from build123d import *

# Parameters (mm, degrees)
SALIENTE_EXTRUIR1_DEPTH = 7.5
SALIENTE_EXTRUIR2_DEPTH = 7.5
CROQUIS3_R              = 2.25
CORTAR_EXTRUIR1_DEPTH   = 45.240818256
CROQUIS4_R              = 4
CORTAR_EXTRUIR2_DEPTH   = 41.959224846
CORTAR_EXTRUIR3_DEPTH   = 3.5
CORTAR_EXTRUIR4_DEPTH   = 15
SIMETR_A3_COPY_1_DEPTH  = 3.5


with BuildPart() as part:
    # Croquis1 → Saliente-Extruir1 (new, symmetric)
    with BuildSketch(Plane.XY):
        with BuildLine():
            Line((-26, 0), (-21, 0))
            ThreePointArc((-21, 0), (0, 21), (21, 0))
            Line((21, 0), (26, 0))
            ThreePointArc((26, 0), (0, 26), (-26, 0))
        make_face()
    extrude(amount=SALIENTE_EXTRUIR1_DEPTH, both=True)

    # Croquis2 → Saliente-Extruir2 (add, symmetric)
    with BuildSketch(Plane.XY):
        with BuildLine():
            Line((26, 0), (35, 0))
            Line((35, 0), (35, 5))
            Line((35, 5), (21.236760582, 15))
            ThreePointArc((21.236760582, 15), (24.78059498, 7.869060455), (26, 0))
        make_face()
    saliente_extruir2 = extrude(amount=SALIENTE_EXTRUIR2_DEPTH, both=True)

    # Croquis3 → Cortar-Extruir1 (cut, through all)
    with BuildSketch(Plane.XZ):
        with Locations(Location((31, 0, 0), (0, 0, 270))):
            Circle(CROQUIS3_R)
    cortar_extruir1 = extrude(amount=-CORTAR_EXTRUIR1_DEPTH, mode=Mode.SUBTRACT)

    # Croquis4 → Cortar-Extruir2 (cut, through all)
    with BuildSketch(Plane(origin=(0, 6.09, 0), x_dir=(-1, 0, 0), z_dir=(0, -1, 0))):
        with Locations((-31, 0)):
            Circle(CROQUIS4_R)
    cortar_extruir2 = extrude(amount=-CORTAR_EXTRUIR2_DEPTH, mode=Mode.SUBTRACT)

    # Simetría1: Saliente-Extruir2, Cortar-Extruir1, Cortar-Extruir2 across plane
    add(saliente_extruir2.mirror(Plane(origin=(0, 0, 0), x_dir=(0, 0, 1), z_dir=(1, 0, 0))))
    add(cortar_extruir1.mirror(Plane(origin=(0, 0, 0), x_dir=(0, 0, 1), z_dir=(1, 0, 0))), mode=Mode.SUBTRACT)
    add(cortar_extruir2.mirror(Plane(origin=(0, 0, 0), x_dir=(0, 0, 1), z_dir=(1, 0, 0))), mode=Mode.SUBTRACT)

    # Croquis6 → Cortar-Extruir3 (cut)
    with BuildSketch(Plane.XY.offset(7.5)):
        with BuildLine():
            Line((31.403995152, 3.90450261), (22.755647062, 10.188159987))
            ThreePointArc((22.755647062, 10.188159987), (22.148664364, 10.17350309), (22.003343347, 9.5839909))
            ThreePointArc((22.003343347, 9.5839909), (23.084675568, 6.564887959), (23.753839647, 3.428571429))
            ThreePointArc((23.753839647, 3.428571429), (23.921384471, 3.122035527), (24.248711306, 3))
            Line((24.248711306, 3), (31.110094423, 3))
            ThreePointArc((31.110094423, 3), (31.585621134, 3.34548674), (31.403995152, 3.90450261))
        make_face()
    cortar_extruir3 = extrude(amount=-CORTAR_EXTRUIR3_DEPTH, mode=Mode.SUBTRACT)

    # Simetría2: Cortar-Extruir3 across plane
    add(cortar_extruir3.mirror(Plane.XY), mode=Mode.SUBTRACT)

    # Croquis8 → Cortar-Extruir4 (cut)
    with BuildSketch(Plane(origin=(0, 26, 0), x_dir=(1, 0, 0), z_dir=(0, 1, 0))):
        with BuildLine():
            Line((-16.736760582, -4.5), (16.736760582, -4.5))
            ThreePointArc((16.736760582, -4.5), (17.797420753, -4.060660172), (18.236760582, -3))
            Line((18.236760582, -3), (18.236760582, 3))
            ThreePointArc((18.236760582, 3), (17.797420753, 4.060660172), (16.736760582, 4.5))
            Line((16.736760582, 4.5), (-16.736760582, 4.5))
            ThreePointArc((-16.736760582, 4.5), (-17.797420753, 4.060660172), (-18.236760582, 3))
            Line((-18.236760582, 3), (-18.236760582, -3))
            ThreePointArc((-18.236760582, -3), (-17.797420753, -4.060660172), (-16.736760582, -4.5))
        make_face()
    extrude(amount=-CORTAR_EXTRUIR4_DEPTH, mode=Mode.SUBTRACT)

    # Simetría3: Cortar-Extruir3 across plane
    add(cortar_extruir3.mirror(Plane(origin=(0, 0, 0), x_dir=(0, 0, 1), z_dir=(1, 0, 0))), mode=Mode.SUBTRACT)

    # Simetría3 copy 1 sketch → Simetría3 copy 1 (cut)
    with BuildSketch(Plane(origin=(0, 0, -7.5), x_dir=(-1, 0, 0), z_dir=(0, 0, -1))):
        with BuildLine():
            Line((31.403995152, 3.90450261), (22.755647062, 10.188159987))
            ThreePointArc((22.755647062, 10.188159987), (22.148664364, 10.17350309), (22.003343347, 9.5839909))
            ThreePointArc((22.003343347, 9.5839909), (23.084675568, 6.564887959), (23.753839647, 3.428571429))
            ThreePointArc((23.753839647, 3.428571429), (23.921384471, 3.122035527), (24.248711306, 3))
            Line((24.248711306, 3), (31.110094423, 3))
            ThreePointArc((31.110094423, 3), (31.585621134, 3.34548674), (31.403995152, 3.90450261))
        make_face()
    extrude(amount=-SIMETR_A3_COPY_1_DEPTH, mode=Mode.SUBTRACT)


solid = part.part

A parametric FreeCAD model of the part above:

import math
import FreeCAD as App
import Part
import Sketcher

doc = App.newDocument("Part")
body = doc.addObject("PartDesign::Body", "Body")

sketch1 = body.newObject("Sketcher::SketchObject", "Sketch")
sketch1.AttachmentSupport = (doc.getObject("XY_Plane"), [""])
sketch1.MapMode = "FlatFace"
sketch1.addGeometry(Part.LineSegment(App.Vector(-26, 0, 0), App.Vector(-21, 0, 0)), False)
sketch1.addGeometry(Part.ArcOfCircle(Part.Circle(App.Vector(0, 0, 0), App.Vector(0, 0, 1), 21), math.radians(0), math.radians(180)), False)
sketch1.addGeometry(Part.LineSegment(App.Vector(21, 0, 0), App.Vector(26, 0, 0)), False)
sketch1.addGeometry(Part.ArcOfCircle(Part.Circle(App.Vector(0, 0, 0), App.Vector(0, 0, 1), 26), math.radians(0), math.radians(180)), False)
sketch1.addConstraint(Sketcher.Constraint("Coincident", 0, 2, 1, 2))
sketch1.addConstraint(Sketcher.Constraint("Coincident", 1, 1, 2, 1))
sketch1.addConstraint(Sketcher.Constraint("Coincident", 2, 2, 3, 1))
sketch1.addConstraint(Sketcher.Constraint("Coincident", 3, 2, 0, 1))
sketch1.addConstraint(Sketcher.Constraint("Horizontal", 0))
sketch1.addConstraint(Sketcher.Constraint("Horizontal", 2))
sketch1.addConstraint(Sketcher.Constraint("Coincident", 1, 3, -1, 1))
sketch1.addConstraint(Sketcher.Constraint("Coincident", 3, 3, -1, 1))
sketch1.addConstraint(Sketcher.Constraint("PointOnObject", 0, 2, -1))
sketch1.addConstraint(Sketcher.Constraint("PointOnObject", 1, 1, -1))
sketch1.addConstraint(Sketcher.Constraint("Radius", 1, 21.0))
sketch1.addConstraint(Sketcher.Constraint("Radius", 3, 26.0))
pad1 = body.newObject("PartDesign::Pad", "Pad")
pad1.Profile = sketch1
pad1.Length = 15
pad1.Midplane = True

sketch2 = body.newObject("Sketcher::SketchObject", "Sketch001")
sketch2.AttachmentSupport = (doc.getObject("XY_Plane"), [""])
sketch2.MapMode = "FlatFace"
sketch2.addGeometry(Part.LineSegment(App.Vector(26, 0, 0), App.Vector(35, 0, 0)), False)
sketch2.addGeometry(Part.LineSegment(App.Vector(35, 0, 0), App.Vector(35, 5, 0)), False)
sketch2.addGeometry(Part.LineSegment(App.Vector(35, 5, 0), App.Vector(21.236761, 15, 0)), False)
sketch2.addGeometry(Part.ArcOfCircle(Part.Circle(App.Vector(0, 0, 0), App.Vector(0, 0, 1), 26), math.radians(0), math.radians(35.234418)), False)
sketch2.addConstraint(Sketcher.Constraint("Coincident", 0, 2, 1, 1))
sketch2.addConstraint(Sketcher.Constraint("Coincident", 1, 2, 2, 1))
sketch2.addConstraint(Sketcher.Constraint("Coincident", 2, 2, 3, 2))
sketch2.addConstraint(Sketcher.Constraint("Coincident", 3, 1, 0, 1))
sketch2.addConstraint(Sketcher.Constraint("Horizontal", 0))
sketch2.addConstraint(Sketcher.Constraint("Vertical", 1))
sketch2.addConstraint(Sketcher.Constraint("Coincident", 3, 3, -1, 1))
sketch2.addConstraint(Sketcher.Constraint("PointOnObject", 0, 2, -1))
sketch2.addConstraint(Sketcher.Constraint("Radius", 3, 26.0))
sketch2.addConstraint(Sketcher.Constraint("DistanceX", 0, 1, 0, 2, 9.0))
sketch2.addConstraint(Sketcher.Constraint("DistanceY", 1, 1, 1, 2, 5.0))
sketch2.addConstraint(Sketcher.Constraint("DistanceY", -1, 1, 2, 2, 15.0))
pad2 = body.newObject("PartDesign::Pad", "Pad001")
pad2.Profile = sketch2
pad2.Length = 15
pad2.Midplane = True

sketch3 = body.newObject("Sketcher::SketchObject", "Sketch002")
sketch3.AttachmentSupport = (doc.getObject("XZ_Plane"), [""])
sketch3.MapMode = "FlatFace"
sketch3.addGeometry(Part.Circle(App.Vector(31, 0, 0), App.Vector(0, 0, 1), 2.25), False)
sketch3.addConstraint(Sketcher.Constraint("PointOnObject", 0, 3, -1))
sketch3.addConstraint(Sketcher.Constraint("Diameter", 0, 4.5))
sketch3.addConstraint(Sketcher.Constraint("DistanceX", -1, 1, 0, 3, 31.0))
pocket1 = body.newObject("PartDesign::Pocket", "Pocket")
pocket1.Profile = sketch3
pocket1.Type = "ThroughAll"

sketch4 = body.newObject("Sketcher::SketchObject", "Sketch003")
sketch4.AttachmentSupport = (doc.getObject("XZ_Plane"), [""])
sketch4.MapMode = "FlatFace"
sketch4.AttachmentOffset = App.Placement(App.Vector(0, 0, -6.09), App.Rotation())
sketch4.addGeometry(Part.Circle(App.Vector(31, 0, 0), App.Vector(0, 0, 1), 4), False)
sketch4.addConstraint(Sketcher.Constraint("PointOnObject", 0, 3, -1))
sketch4.addConstraint(Sketcher.Constraint("Diameter", 0, 8.0))
sketch4.addConstraint(Sketcher.Constraint("DistanceX", -1, 1, 0, 3, 31.0))
pocket2 = body.newObject("PartDesign::Pocket", "Pocket001")
pocket2.Profile = sketch4
pocket2.Type = "ThroughAll"
doc.recompute()

mirrored = body.newObject("PartDesign::Mirrored", "Mirrored")
mirrored.Originals = [pad2, pocket1, pocket2]
mirrored.MirrorPlane = (doc.getObject("YZ_Plane"), [""])
body.Tip = mirrored

sketch5 = body.newObject("Sketcher::SketchObject", "Sketch004")
sketch5.AttachmentSupport = (doc.getObject("XY_Plane"), [""])
sketch5.MapMode = "FlatFace"
sketch5.AttachmentOffset = App.Placement(App.Vector(0, 0, 7.5), App.Rotation())
sketch5.addGeometry(Part.LineSegment(App.Vector(31.403995, 3.904503, 0), App.Vector(22.755647, 10.18816, 0)), False)
sketch5.addGeometry(Part.ArcOfCircle(Part.Circle(App.Vector(22.461746, 9.783657, 0), App.Vector(0, 0, 1), 0.5), math.radians(53.998852), math.radians(203.536485)), False)
sketch5.addGeometry(Part.ArcOfCircle(Part.Circle(App.Vector(0, 0, 0), App.Vector(0, 0, 1), 24), math.radians(8.213211), math.radians(23.536485)), False)
sketch5.addGeometry(Part.ArcOfCircle(Part.Circle(App.Vector(24.248711, 3.5, 0), App.Vector(0, 0, 1), 0.5), math.radians(-171.786789), math.radians(-90)), False)
sketch5.addGeometry(Part.LineSegment(App.Vector(24.248711, 3, 0), App.Vector(31.110094, 3, 0)), False)
sketch5.addGeometry(Part.ArcOfCircle(Part.Circle(App.Vector(31.110094, 3.5, 0), App.Vector(0, 0, 1), 0.5), math.radians(-90), math.radians(53.998852)), False)
sketch5.addConstraint(Sketcher.Constraint("Tangent", 0, 2, 1, 1))
sketch5.addConstraint(Sketcher.Constraint("Tangent", 1, 2, 2, 2))
sketch5.addConstraint(Sketcher.Constraint("Tangent", 2, 1, 3, 1))
sketch5.addConstraint(Sketcher.Constraint("Tangent", 3, 2, 4, 1))
sketch5.addConstraint(Sketcher.Constraint("Tangent", 4, 2, 5, 1))
sketch5.addConstraint(Sketcher.Constraint("Tangent", 5, 2, 0, 1))
sketch5.addConstraint(Sketcher.Constraint("Horizontal", 4))
sketch5.addConstraint(Sketcher.Constraint("Coincident", 2, 3, -1, 1))
sketch5.addConstraint(Sketcher.Constraint("Equal", 1, 3))
sketch5.addConstraint(Sketcher.Constraint("Equal", 3, 5))
sketch5.addConstraint(Sketcher.Constraint("Radius", 2, 24.0))
sketch5.addConstraint(Sketcher.Constraint("Radius", 1, 0.5))
sketch5.addConstraint(Sketcher.Constraint("DistanceY", -1, 1, 3, 2, 3.0))
sketch5.addConstraint(Sketcher.Constraint("Distance", 0, 10.690102))
sketch5.addConstraint(Sketcher.Constraint("DistanceX", 1, 3, 0, 2, 0.293901))
pocket3 = body.newObject("PartDesign::Pocket", "Pocket002")
pocket3.Profile = sketch5
pocket3.Length = 3.5
doc.recompute()

mirrored2 = body.newObject("PartDesign::Mirrored", "Mirrored001")
mirrored2.Originals = [pocket3]
mirrored2.MirrorPlane = (doc.getObject("XY_Plane"), [""])
body.Tip = mirrored2

sketch6 = body.newObject("Sketcher::SketchObject", "Sketch005")
sketch6.AttachmentSupport = (doc.getObject("XZ_Plane"), [""])
sketch6.MapMode = "FlatFace"
sketch6.AttachmentOffset = App.Placement(App.Vector(0, 0, -26), App.Rotation())
sketch6.addGeometry(Part.LineSegment(App.Vector(-16.736761, 4.5, 0), App.Vector(16.736761, 4.5, 0)), False)
sketch6.addGeometry(Part.ArcOfCircle(Part.Circle(App.Vector(16.736761, 3, 0), App.Vector(0, 0, 1), 1.5), math.radians(0), math.radians(90)), False)
sketch6.addGeometry(Part.LineSegment(App.Vector(18.236761, 3, 0), App.Vector(18.236761, -3, 0)), False)
sketch6.addGeometry(Part.ArcOfCircle(Part.Circle(App.Vector(16.736761, -3, 0), App.Vector(0, 0, 1), 1.5), math.radians(-90), math.radians(0)), False)
sketch6.addGeometry(Part.LineSegment(App.Vector(16.736761, -4.5, 0), App.Vector(-16.736761, -4.5, 0)), False)
sketch6.addGeometry(Part.ArcOfCircle(Part.Circle(App.Vector(-16.736761, -3, 0), App.Vector(0, 0, 1), 1.5), math.radians(-180), math.radians(-90)), False)
sketch6.addGeometry(Part.LineSegment(App.Vector(-18.236761, -3, 0), App.Vector(-18.236761, 3, 0)), False)
sketch6.addGeometry(Part.ArcOfCircle(Part.Circle(App.Vector(-16.736761, 3, 0), App.Vector(0, 0, 1), 1.5), math.radians(90), math.radians(180)), False)
sketch6.addConstraint(Sketcher.Constraint("Tangent", 0, 2, 1, 2))
sketch6.addConstraint(Sketcher.Constraint("Tangent", 1, 1, 2, 1))
sketch6.addConstraint(Sketcher.Constraint("Tangent", 2, 2, 3, 2))
sketch6.addConstraint(Sketcher.Constraint("Tangent", 3, 1, 4, 1))
sketch6.addConstraint(Sketcher.Constraint("Tangent", 4, 2, 5, 2))
sketch6.addConstraint(Sketcher.Constraint("Tangent", 5, 1, 6, 1))
sketch6.addConstraint(Sketcher.Constraint("Tangent", 6, 2, 7, 2))
sketch6.addConstraint(Sketcher.Constraint("Tangent", 7, 1, 0, 1))
sketch6.addConstraint(Sketcher.Constraint("Horizontal", 0))
sketch6.addConstraint(Sketcher.Constraint("Vertical", 2))
sketch6.addConstraint(Sketcher.Constraint("Horizontal", 4))
sketch6.addConstraint(Sketcher.Constraint("Vertical", 6))
sketch6.addConstraint(Sketcher.Constraint("Equal", 1, 3))
sketch6.addConstraint(Sketcher.Constraint("Equal", 3, 5))
sketch6.addConstraint(Sketcher.Constraint("Equal", 5, 7))
sketch6.addConstraint(Sketcher.Constraint("Symmetric", 1, 3, 5, 3, -1, 1))
sketch6.addConstraint(Sketcher.Constraint("Radius", 1, 1.5))
sketch6.addConstraint(Sketcher.Constraint("DistanceY", 2, 2, 2, 1, 6.0))
sketch6.addConstraint(Sketcher.Constraint("DistanceX", 0, 1, 0, 2, 33.473521))
pocket4 = body.newObject("PartDesign::Pocket", "Pocket003")
pocket4.Profile = sketch6
pocket4.Length = 15
pocket4.Reversed = True
doc.recompute()

mirrored3 = body.newObject("PartDesign::Mirrored", "Mirrored002")
mirrored3.Originals = [pocket3]
mirrored3.MirrorPlane = (doc.getObject("YZ_Plane"), [""])
body.Tip = mirrored3

sketch7 = body.newObject("Sketcher::SketchObject", "Sketch006")
sketch7.AttachmentSupport = (doc.getObject("XY_Plane"), [""])
sketch7.MapMode = "FlatFace"
sketch7.AttachmentOffset = App.Placement(App.Vector(0, 0, -7.5), App.Rotation())
sketch7.addGeometry(Part.LineSegment(App.Vector(-31.403995, 3.904503, 0), App.Vector(-22.755647, 10.18816, 0)), False)
sketch7.addGeometry(Part.ArcOfCircle(Part.Circle(App.Vector(-22.461746, 9.783657, 0), App.Vector(0, 0, 1), 0.5), math.radians(-23.536485), math.radians(126.001148)), False)
sketch7.addGeometry(Part.ArcOfCircle(Part.Circle(App.Vector(0, 0, 0), App.Vector(0, 0, 1), 24), math.radians(156.463515), math.radians(171.786789)), False)
sketch7.addGeometry(Part.ArcOfCircle(Part.Circle(App.Vector(-24.248711, 3.5, 0), App.Vector(0, 0, 1), 0.5), math.radians(-90), math.radians(-8.213211)), False)
sketch7.addGeometry(Part.LineSegment(App.Vector(-24.248711, 3, 0), App.Vector(-31.110094, 3, 0)), False)
sketch7.addGeometry(Part.ArcOfCircle(Part.Circle(App.Vector(-31.110094, 3.5, 0), App.Vector(0, 0, 1), 0.5), math.radians(126.001148), math.radians(270)), False)
sketch7.addConstraint(Sketcher.Constraint("Tangent", 0, 2, 1, 2))
sketch7.addConstraint(Sketcher.Constraint("Tangent", 1, 1, 2, 1))
sketch7.addConstraint(Sketcher.Constraint("Tangent", 2, 2, 3, 2))
sketch7.addConstraint(Sketcher.Constraint("Tangent", 3, 1, 4, 1))
sketch7.addConstraint(Sketcher.Constraint("Tangent", 4, 2, 5, 2))
sketch7.addConstraint(Sketcher.Constraint("Tangent", 5, 1, 0, 1))
sketch7.addConstraint(Sketcher.Constraint("Horizontal", 4))
sketch7.addConstraint(Sketcher.Constraint("Coincident", 2, 3, -1, 1))
sketch7.addConstraint(Sketcher.Constraint("Equal", 1, 3))
sketch7.addConstraint(Sketcher.Constraint("Equal", 3, 5))
sketch7.addConstraint(Sketcher.Constraint("Radius", 2, 24.0))
sketch7.addConstraint(Sketcher.Constraint("Radius", 1, 0.5))
sketch7.addConstraint(Sketcher.Constraint("DistanceY", -1, 1, 3, 1, 3.0))
sketch7.addConstraint(Sketcher.Constraint("Distance", 0, 10.690102))
sketch7.addConstraint(Sketcher.Constraint("DistanceX", 0, 2, 1, 3, 0.293901))
pocket5 = body.newObject("PartDesign::Pocket", "Pocket004")
pocket5.Profile = sketch7
pocket5.Length = 3.5
pocket5.Reversed = True

doc.recompute()
